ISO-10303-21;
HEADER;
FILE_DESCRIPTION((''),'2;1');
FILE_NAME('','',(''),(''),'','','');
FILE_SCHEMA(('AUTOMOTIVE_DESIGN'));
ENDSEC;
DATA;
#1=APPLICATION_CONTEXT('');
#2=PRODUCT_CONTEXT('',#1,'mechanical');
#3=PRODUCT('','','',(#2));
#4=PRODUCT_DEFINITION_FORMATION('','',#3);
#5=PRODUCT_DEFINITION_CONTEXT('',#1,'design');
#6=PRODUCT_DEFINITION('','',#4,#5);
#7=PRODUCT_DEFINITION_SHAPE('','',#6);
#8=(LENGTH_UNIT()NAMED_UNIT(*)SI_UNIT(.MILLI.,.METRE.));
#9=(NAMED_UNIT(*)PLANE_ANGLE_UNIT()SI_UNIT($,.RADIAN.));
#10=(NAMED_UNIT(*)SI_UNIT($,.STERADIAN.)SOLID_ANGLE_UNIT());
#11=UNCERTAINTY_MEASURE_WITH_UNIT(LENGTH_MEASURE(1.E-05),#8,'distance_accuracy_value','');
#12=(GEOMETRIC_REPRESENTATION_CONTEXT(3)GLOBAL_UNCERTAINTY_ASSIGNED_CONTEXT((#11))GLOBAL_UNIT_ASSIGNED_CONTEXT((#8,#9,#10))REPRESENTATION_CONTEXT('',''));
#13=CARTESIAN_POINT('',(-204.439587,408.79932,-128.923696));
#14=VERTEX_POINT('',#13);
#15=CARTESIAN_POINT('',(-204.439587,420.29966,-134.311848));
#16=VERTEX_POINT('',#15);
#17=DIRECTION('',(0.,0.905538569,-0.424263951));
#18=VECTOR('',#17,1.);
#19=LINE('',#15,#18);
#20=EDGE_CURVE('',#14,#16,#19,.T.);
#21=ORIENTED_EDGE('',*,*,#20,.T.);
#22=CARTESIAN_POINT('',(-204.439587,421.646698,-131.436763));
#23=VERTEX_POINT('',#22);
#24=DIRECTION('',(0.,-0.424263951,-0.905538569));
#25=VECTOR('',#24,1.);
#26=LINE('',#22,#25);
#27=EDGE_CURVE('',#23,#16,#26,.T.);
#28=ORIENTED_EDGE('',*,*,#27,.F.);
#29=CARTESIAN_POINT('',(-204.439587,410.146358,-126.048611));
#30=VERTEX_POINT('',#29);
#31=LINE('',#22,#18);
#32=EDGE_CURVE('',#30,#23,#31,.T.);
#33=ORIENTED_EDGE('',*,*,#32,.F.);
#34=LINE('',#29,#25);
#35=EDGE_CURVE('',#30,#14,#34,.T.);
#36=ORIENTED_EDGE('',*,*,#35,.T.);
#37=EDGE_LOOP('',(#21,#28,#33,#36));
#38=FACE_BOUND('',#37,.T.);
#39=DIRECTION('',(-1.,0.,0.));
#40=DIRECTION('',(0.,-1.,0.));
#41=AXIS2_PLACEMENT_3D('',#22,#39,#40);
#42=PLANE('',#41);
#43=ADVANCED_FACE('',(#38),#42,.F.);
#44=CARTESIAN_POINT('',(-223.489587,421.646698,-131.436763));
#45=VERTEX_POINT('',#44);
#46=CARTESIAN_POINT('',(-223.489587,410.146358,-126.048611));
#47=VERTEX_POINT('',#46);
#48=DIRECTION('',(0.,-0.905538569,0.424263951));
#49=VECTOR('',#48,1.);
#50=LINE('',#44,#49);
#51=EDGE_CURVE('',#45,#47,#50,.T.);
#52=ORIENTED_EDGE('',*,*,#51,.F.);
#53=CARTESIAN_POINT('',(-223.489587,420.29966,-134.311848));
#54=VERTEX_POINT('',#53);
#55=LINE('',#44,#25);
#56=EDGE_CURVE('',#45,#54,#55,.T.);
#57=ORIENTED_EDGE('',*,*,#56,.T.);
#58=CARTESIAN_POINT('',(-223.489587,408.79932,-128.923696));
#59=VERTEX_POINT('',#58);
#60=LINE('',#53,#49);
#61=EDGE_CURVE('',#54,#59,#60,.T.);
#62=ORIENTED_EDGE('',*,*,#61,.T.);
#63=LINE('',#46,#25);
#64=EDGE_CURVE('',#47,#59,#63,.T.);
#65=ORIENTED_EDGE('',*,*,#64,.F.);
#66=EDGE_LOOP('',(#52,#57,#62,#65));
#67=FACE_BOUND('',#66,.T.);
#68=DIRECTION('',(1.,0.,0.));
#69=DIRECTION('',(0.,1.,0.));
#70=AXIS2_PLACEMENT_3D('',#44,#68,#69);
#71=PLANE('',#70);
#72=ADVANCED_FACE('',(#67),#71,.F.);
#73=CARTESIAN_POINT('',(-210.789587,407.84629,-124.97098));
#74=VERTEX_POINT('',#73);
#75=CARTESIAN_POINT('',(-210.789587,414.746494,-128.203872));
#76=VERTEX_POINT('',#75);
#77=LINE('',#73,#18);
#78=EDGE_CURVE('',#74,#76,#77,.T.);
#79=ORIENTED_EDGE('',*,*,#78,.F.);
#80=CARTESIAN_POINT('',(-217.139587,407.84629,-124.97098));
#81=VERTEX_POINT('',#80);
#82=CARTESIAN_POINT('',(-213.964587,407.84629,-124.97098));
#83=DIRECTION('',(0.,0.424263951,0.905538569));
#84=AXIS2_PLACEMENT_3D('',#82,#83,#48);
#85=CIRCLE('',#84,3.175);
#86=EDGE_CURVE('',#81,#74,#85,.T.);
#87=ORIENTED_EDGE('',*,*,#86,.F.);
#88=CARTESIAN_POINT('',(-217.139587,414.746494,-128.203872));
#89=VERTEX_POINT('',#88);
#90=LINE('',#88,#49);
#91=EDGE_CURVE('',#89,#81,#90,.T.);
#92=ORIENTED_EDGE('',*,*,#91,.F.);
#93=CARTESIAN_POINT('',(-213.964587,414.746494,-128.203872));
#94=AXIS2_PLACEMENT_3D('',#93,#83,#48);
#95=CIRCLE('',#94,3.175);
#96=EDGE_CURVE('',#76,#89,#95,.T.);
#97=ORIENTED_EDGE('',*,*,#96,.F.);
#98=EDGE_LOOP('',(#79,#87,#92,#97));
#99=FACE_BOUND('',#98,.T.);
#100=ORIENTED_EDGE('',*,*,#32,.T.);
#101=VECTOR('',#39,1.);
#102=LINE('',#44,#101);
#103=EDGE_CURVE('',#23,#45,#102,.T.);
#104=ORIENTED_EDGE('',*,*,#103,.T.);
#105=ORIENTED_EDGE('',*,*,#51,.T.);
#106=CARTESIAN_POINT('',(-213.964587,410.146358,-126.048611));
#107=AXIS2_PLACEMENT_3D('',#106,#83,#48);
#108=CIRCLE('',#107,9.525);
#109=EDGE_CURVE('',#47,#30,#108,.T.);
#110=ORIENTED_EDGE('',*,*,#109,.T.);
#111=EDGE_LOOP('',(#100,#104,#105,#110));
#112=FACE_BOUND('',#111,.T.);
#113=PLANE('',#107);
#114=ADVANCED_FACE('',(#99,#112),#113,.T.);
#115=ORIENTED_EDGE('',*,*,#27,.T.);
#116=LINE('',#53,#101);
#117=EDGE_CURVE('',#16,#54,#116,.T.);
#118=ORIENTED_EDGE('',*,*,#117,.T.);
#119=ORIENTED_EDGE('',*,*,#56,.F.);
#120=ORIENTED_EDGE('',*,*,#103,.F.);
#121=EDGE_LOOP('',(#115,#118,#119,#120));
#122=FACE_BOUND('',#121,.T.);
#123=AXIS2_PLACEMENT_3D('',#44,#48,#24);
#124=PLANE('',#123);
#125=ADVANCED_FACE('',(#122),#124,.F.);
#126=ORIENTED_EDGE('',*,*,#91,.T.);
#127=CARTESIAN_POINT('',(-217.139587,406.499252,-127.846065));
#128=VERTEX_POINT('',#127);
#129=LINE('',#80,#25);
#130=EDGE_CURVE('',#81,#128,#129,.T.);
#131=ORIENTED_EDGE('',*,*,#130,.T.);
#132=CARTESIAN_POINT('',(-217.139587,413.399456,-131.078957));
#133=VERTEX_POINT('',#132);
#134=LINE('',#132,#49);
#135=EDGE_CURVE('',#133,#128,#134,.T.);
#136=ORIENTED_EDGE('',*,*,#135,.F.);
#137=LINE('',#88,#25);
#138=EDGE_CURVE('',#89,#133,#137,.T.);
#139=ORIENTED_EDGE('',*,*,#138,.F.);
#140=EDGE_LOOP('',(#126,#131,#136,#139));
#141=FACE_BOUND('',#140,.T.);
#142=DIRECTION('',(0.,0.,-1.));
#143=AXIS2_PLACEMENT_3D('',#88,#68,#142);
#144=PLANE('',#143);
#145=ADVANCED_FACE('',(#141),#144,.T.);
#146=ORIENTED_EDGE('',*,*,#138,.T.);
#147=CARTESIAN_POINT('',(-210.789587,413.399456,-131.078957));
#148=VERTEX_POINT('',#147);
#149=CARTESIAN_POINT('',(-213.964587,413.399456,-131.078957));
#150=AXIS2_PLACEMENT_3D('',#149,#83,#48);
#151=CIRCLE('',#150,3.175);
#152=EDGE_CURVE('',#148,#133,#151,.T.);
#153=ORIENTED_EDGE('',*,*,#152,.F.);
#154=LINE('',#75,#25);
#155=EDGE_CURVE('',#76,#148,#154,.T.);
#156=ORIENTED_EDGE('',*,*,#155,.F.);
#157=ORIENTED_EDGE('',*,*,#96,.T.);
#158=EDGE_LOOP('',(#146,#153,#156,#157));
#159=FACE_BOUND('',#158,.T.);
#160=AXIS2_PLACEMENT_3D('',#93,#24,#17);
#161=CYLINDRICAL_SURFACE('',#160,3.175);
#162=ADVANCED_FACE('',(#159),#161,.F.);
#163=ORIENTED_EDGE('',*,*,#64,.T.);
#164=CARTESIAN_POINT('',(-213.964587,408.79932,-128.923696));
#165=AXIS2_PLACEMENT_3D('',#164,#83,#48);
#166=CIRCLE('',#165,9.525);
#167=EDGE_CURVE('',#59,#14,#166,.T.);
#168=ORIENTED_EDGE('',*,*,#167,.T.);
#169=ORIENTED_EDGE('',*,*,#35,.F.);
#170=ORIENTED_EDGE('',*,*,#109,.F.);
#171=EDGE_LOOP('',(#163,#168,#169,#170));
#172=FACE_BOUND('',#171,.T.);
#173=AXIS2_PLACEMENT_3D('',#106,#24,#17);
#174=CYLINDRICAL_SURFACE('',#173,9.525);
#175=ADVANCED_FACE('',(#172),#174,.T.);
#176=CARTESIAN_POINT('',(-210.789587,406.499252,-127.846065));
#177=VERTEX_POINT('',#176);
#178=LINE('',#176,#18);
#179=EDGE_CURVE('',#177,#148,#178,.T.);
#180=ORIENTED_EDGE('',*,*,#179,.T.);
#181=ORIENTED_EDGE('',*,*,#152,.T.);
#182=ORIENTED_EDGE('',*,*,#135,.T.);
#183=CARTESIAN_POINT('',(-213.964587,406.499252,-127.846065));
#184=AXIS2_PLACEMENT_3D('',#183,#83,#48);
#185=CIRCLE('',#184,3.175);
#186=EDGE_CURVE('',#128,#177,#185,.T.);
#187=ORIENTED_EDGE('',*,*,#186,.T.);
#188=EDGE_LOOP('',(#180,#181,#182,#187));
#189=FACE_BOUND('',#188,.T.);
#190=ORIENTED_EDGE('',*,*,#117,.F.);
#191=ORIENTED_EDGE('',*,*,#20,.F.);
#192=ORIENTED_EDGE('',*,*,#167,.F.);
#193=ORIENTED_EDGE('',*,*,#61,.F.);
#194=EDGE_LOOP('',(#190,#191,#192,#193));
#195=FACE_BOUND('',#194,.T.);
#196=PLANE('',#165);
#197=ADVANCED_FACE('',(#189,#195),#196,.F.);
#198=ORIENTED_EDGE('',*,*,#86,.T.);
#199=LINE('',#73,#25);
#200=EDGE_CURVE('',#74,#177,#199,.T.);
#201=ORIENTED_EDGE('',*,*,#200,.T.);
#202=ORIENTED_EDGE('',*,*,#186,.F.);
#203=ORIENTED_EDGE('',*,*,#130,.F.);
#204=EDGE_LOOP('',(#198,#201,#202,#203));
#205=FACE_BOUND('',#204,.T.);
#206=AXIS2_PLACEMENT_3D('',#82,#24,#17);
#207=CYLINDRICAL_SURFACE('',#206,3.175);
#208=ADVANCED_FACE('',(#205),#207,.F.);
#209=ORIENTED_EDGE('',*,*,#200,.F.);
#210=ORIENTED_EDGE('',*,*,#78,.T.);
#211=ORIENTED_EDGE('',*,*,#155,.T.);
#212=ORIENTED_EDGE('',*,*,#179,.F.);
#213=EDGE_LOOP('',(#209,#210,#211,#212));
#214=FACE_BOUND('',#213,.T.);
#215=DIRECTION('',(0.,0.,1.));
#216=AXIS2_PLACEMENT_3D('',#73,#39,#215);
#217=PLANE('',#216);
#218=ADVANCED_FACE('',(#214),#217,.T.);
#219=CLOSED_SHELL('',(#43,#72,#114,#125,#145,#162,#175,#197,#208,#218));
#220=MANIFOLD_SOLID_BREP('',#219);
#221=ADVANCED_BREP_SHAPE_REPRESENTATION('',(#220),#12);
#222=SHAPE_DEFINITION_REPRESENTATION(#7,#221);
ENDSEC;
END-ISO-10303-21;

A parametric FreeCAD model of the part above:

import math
import FreeCAD as App
import Part
import Sketcher

V = App.Vector
Q = App.Units.Quantity

doc = App.newDocument("Part")
body = doc.addObject("PartDesign::Body", "Body")

# Sketch on an angled plane
sketch1 = body.newObject("Sketcher::SketchObject", "Sketch")
sketch1.Placement = App.Placement(V(0, 24.052981, 51.338093), App.Rotation(V(1, 0, 0), V(0, 0.905538569, -0.424263951), V(0, 0.424263951, 0.905538569), "ZXY"))
sketch1.addGeometry([
    Part.LineSegment(V(-204.4, 437.6, 0), V(-223.5, 437.6, 0)),  # 0
    Part.LineSegment(V(-223.5, 437.6, 0), V(-223.5, 424.9, 0)),  # 1
    Part.ArcOfCircle(Part.Circle(V(-214, 424.9, 0), V(0, 0, 1), 9.5), math.radians(180), math.radians(360)),  # 2
    Part.LineSegment(V(-204.4, 424.9, 0), V(-204.4, 437.6, 0)),  # 3
    Part.ArcOfCircle(Part.Circle(V(-214, 422.3, 0), V(0, 0, 1), 3.2), math.radians(180), math.radians(360)),  # 4
    Part.LineSegment(V(-217.1, 422.3, 0), V(-217.1, 430, 0)),  # 5
    Part.ArcOfCircle(Part.Circle(V(-214, 430, 0), V(0, 0, 1), 3.2), math.radians(0), math.radians(180)),  # 6
    Part.LineSegment(V(-210.8, 430, 0), V(-210.8, 422.3, 0)),  # 7
], False)
sketch1.addConstraint([
    Sketcher.Constraint("Coincident", 0, 2, 1, 1),
    Sketcher.Constraint("Tangent", 1, 2, 2, 1),
    Sketcher.Constraint("Tangent", 2, 2, 3, 1),
    Sketcher.Constraint("Coincident", 3, 2, 0, 1),
    Sketcher.Constraint("Tangent", 4, 1, 5, 1),
    Sketcher.Constraint("Tangent", 5, 2, 6, 2),
    Sketcher.Constraint("Tangent", 6, 1, 7, 1),
    Sketcher.Constraint("Tangent", 7, 2, 4, 2),
    Sketcher.Constraint("Horizontal", 0),
    Sketcher.Constraint("Vertical", 1),
    Sketcher.Constraint("Vertical", 3),
    Sketcher.Constraint("Vertical", 5),
    Sketcher.Constraint("Vertical", 7),
    Sketcher.Constraint("Vertical", 2, 3, 4, 3),
    Sketcher.Constraint("DistanceY", 1, 2, 1, 1, Q("0.5 in")),
    Sketcher.Constraint("DistanceY", 5, 1, 5, 2, Q("0.3 in")),
    Sketcher.Constraint("Radius", 2, Q("0.375 in")),
    Sketcher.Constraint("Radius", 4, Q("0.125 in")),
    Sketcher.Constraint("DistanceY", 4, 3, 2, 3, Q("0.1 in")),
    Sketcher.Constraint("DistanceY", -1, 1, 2, 3, Q("424.881228 mm")),
    Sketcher.Constraint("DistanceX", 2, 3, -1, 1, Q("213.964587 mm")),
])
pad1 = body.newObject("PartDesign::Pad", "Pad")
pad1.Profile = sketch1
pad1.Length = Q("0.125 in")

doc.recompute()
